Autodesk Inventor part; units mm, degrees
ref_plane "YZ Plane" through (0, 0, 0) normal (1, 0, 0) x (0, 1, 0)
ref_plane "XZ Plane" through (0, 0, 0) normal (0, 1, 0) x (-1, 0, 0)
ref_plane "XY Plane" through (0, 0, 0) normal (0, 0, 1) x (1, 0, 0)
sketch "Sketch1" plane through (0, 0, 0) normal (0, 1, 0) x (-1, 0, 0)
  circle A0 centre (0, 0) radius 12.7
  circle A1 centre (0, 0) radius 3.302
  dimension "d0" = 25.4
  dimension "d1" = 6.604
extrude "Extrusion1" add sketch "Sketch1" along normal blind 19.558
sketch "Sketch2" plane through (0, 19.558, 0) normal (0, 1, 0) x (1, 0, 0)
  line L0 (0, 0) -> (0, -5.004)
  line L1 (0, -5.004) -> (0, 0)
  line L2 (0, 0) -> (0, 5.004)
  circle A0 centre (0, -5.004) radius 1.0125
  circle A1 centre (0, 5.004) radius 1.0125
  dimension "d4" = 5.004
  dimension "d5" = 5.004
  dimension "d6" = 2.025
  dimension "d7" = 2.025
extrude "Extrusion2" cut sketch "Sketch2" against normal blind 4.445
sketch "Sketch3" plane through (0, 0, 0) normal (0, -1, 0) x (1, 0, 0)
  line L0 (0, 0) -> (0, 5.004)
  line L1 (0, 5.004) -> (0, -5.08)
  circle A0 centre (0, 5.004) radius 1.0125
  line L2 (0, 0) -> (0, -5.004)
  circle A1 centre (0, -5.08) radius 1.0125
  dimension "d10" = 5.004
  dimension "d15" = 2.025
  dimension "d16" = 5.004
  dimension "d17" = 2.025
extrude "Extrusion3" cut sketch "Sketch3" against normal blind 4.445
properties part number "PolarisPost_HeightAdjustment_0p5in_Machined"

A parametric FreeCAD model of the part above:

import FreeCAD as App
import Part
import Sketcher
Q = App.Units.Quantity

doc = App.newDocument("Part")
body = doc.addObject("PartDesign::Body", "Body")

sketch1 = body.newObject("Sketcher::SketchObject", "Sketch")
sketch1.AttachmentSupport = (doc.getObject("XZ_Plane"), [""])
sketch1.MapMode = "FlatFace"
sketch1.addGeometry([
    Part.Circle(App.Vector(0, 0, 0), App.Vector(0, 0, 1), 12.7),
    Part.Circle(App.Vector(0, 0, 0), App.Vector(0, 0, 1), 3.302),
], False)
sketch1.addConstraint([
    Sketcher.Constraint("Coincident", 0, 3, -1, 1),
    Sketcher.Constraint("Coincident", 1, 3, -1, 1),
    Sketcher.Constraint("Diameter", 0, Q("1 in")),
    Sketcher.Constraint("Diameter", 1, Q("0.26 in")),
])
pad1 = body.newObject("PartDesign::Pad", "Pad")
pad1.Profile = sketch1
pad1.Length = Q("0.77 in")
pad1.Reversed = True

sketch2 = body.newObject("Sketcher::SketchObject", "Sketch001")
sketch2.AttachmentSupport = (doc.getObject("XZ_Plane"), [""])
sketch2.MapMode = "FlatFace"
sketch2.AttachmentOffset = App.Placement(App.Vector(0, 0, -0.77 * 25.4), App.Rotation())
sketch2.addGeometry([
    Part.Circle(App.Vector(0, 5.004, 0), App.Vector(0, 0, 1), 1.0125),
    Part.Circle(App.Vector(0, -5.004, 0), App.Vector(0, 0, 1), 1.0125),
], False)
sketch2.addConstraint([
    Sketcher.Constraint("Equal", 0, 1),
    Sketcher.Constraint("Symmetric", 0, 3, 1, 3, -1, 1),
    Sketcher.Constraint("PointOnObject", 0, 3, -2),
    Sketcher.Constraint("Diameter", 0, Q("2.025 mm")),
    Sketcher.Constraint("DistanceY", -1, 1, 0, 3, Q("0.197 in")),
])
pocket1 = body.newObject("PartDesign::Pocket", "Pocket")
pocket1.Profile = sketch2
pocket1.Length = Q("0.175 in")
pocket1.Reversed = True

sketch3 = body.newObject("Sketcher::SketchObject", "Sketch002")
sketch3.AttachmentSupport = (doc.getObject("XZ_Plane"), [""])
sketch3.MapMode = "FlatFace"
sketch3.addGeometry([
    Part.Circle(App.Vector(0, 5.004, 0), App.Vector(0, 0, 1), 1.0125),
    Part.Circle(App.Vector(0, -5.08, 0), App.Vector(0, 0, 1), 1.0125),
], False)
sketch3.addConstraint([
    Sketcher.Constraint("Equal", 0, 1),
    Sketcher.Constraint("PointOnObject", 0, 3, -2),
    Sketcher.Constraint("PointOnObject", 1, 3, -2),
    Sketcher.Constraint("Diameter", 0, Q("2.025 mm")),
    Sketcher.Constraint("DistanceY", -1, 1, 0, 3, Q("0.197 in")),
    Sketcher.Constraint("DistanceY", 1, 3, -1, 1, Q("0.2 in")),
])
pocket2 = body.newObject("PartDesign::Pocket", "Pocket001")
pocket2.Profile = sketch3
pocket2.Length = Q("0.175 in")

doc.recompute()
